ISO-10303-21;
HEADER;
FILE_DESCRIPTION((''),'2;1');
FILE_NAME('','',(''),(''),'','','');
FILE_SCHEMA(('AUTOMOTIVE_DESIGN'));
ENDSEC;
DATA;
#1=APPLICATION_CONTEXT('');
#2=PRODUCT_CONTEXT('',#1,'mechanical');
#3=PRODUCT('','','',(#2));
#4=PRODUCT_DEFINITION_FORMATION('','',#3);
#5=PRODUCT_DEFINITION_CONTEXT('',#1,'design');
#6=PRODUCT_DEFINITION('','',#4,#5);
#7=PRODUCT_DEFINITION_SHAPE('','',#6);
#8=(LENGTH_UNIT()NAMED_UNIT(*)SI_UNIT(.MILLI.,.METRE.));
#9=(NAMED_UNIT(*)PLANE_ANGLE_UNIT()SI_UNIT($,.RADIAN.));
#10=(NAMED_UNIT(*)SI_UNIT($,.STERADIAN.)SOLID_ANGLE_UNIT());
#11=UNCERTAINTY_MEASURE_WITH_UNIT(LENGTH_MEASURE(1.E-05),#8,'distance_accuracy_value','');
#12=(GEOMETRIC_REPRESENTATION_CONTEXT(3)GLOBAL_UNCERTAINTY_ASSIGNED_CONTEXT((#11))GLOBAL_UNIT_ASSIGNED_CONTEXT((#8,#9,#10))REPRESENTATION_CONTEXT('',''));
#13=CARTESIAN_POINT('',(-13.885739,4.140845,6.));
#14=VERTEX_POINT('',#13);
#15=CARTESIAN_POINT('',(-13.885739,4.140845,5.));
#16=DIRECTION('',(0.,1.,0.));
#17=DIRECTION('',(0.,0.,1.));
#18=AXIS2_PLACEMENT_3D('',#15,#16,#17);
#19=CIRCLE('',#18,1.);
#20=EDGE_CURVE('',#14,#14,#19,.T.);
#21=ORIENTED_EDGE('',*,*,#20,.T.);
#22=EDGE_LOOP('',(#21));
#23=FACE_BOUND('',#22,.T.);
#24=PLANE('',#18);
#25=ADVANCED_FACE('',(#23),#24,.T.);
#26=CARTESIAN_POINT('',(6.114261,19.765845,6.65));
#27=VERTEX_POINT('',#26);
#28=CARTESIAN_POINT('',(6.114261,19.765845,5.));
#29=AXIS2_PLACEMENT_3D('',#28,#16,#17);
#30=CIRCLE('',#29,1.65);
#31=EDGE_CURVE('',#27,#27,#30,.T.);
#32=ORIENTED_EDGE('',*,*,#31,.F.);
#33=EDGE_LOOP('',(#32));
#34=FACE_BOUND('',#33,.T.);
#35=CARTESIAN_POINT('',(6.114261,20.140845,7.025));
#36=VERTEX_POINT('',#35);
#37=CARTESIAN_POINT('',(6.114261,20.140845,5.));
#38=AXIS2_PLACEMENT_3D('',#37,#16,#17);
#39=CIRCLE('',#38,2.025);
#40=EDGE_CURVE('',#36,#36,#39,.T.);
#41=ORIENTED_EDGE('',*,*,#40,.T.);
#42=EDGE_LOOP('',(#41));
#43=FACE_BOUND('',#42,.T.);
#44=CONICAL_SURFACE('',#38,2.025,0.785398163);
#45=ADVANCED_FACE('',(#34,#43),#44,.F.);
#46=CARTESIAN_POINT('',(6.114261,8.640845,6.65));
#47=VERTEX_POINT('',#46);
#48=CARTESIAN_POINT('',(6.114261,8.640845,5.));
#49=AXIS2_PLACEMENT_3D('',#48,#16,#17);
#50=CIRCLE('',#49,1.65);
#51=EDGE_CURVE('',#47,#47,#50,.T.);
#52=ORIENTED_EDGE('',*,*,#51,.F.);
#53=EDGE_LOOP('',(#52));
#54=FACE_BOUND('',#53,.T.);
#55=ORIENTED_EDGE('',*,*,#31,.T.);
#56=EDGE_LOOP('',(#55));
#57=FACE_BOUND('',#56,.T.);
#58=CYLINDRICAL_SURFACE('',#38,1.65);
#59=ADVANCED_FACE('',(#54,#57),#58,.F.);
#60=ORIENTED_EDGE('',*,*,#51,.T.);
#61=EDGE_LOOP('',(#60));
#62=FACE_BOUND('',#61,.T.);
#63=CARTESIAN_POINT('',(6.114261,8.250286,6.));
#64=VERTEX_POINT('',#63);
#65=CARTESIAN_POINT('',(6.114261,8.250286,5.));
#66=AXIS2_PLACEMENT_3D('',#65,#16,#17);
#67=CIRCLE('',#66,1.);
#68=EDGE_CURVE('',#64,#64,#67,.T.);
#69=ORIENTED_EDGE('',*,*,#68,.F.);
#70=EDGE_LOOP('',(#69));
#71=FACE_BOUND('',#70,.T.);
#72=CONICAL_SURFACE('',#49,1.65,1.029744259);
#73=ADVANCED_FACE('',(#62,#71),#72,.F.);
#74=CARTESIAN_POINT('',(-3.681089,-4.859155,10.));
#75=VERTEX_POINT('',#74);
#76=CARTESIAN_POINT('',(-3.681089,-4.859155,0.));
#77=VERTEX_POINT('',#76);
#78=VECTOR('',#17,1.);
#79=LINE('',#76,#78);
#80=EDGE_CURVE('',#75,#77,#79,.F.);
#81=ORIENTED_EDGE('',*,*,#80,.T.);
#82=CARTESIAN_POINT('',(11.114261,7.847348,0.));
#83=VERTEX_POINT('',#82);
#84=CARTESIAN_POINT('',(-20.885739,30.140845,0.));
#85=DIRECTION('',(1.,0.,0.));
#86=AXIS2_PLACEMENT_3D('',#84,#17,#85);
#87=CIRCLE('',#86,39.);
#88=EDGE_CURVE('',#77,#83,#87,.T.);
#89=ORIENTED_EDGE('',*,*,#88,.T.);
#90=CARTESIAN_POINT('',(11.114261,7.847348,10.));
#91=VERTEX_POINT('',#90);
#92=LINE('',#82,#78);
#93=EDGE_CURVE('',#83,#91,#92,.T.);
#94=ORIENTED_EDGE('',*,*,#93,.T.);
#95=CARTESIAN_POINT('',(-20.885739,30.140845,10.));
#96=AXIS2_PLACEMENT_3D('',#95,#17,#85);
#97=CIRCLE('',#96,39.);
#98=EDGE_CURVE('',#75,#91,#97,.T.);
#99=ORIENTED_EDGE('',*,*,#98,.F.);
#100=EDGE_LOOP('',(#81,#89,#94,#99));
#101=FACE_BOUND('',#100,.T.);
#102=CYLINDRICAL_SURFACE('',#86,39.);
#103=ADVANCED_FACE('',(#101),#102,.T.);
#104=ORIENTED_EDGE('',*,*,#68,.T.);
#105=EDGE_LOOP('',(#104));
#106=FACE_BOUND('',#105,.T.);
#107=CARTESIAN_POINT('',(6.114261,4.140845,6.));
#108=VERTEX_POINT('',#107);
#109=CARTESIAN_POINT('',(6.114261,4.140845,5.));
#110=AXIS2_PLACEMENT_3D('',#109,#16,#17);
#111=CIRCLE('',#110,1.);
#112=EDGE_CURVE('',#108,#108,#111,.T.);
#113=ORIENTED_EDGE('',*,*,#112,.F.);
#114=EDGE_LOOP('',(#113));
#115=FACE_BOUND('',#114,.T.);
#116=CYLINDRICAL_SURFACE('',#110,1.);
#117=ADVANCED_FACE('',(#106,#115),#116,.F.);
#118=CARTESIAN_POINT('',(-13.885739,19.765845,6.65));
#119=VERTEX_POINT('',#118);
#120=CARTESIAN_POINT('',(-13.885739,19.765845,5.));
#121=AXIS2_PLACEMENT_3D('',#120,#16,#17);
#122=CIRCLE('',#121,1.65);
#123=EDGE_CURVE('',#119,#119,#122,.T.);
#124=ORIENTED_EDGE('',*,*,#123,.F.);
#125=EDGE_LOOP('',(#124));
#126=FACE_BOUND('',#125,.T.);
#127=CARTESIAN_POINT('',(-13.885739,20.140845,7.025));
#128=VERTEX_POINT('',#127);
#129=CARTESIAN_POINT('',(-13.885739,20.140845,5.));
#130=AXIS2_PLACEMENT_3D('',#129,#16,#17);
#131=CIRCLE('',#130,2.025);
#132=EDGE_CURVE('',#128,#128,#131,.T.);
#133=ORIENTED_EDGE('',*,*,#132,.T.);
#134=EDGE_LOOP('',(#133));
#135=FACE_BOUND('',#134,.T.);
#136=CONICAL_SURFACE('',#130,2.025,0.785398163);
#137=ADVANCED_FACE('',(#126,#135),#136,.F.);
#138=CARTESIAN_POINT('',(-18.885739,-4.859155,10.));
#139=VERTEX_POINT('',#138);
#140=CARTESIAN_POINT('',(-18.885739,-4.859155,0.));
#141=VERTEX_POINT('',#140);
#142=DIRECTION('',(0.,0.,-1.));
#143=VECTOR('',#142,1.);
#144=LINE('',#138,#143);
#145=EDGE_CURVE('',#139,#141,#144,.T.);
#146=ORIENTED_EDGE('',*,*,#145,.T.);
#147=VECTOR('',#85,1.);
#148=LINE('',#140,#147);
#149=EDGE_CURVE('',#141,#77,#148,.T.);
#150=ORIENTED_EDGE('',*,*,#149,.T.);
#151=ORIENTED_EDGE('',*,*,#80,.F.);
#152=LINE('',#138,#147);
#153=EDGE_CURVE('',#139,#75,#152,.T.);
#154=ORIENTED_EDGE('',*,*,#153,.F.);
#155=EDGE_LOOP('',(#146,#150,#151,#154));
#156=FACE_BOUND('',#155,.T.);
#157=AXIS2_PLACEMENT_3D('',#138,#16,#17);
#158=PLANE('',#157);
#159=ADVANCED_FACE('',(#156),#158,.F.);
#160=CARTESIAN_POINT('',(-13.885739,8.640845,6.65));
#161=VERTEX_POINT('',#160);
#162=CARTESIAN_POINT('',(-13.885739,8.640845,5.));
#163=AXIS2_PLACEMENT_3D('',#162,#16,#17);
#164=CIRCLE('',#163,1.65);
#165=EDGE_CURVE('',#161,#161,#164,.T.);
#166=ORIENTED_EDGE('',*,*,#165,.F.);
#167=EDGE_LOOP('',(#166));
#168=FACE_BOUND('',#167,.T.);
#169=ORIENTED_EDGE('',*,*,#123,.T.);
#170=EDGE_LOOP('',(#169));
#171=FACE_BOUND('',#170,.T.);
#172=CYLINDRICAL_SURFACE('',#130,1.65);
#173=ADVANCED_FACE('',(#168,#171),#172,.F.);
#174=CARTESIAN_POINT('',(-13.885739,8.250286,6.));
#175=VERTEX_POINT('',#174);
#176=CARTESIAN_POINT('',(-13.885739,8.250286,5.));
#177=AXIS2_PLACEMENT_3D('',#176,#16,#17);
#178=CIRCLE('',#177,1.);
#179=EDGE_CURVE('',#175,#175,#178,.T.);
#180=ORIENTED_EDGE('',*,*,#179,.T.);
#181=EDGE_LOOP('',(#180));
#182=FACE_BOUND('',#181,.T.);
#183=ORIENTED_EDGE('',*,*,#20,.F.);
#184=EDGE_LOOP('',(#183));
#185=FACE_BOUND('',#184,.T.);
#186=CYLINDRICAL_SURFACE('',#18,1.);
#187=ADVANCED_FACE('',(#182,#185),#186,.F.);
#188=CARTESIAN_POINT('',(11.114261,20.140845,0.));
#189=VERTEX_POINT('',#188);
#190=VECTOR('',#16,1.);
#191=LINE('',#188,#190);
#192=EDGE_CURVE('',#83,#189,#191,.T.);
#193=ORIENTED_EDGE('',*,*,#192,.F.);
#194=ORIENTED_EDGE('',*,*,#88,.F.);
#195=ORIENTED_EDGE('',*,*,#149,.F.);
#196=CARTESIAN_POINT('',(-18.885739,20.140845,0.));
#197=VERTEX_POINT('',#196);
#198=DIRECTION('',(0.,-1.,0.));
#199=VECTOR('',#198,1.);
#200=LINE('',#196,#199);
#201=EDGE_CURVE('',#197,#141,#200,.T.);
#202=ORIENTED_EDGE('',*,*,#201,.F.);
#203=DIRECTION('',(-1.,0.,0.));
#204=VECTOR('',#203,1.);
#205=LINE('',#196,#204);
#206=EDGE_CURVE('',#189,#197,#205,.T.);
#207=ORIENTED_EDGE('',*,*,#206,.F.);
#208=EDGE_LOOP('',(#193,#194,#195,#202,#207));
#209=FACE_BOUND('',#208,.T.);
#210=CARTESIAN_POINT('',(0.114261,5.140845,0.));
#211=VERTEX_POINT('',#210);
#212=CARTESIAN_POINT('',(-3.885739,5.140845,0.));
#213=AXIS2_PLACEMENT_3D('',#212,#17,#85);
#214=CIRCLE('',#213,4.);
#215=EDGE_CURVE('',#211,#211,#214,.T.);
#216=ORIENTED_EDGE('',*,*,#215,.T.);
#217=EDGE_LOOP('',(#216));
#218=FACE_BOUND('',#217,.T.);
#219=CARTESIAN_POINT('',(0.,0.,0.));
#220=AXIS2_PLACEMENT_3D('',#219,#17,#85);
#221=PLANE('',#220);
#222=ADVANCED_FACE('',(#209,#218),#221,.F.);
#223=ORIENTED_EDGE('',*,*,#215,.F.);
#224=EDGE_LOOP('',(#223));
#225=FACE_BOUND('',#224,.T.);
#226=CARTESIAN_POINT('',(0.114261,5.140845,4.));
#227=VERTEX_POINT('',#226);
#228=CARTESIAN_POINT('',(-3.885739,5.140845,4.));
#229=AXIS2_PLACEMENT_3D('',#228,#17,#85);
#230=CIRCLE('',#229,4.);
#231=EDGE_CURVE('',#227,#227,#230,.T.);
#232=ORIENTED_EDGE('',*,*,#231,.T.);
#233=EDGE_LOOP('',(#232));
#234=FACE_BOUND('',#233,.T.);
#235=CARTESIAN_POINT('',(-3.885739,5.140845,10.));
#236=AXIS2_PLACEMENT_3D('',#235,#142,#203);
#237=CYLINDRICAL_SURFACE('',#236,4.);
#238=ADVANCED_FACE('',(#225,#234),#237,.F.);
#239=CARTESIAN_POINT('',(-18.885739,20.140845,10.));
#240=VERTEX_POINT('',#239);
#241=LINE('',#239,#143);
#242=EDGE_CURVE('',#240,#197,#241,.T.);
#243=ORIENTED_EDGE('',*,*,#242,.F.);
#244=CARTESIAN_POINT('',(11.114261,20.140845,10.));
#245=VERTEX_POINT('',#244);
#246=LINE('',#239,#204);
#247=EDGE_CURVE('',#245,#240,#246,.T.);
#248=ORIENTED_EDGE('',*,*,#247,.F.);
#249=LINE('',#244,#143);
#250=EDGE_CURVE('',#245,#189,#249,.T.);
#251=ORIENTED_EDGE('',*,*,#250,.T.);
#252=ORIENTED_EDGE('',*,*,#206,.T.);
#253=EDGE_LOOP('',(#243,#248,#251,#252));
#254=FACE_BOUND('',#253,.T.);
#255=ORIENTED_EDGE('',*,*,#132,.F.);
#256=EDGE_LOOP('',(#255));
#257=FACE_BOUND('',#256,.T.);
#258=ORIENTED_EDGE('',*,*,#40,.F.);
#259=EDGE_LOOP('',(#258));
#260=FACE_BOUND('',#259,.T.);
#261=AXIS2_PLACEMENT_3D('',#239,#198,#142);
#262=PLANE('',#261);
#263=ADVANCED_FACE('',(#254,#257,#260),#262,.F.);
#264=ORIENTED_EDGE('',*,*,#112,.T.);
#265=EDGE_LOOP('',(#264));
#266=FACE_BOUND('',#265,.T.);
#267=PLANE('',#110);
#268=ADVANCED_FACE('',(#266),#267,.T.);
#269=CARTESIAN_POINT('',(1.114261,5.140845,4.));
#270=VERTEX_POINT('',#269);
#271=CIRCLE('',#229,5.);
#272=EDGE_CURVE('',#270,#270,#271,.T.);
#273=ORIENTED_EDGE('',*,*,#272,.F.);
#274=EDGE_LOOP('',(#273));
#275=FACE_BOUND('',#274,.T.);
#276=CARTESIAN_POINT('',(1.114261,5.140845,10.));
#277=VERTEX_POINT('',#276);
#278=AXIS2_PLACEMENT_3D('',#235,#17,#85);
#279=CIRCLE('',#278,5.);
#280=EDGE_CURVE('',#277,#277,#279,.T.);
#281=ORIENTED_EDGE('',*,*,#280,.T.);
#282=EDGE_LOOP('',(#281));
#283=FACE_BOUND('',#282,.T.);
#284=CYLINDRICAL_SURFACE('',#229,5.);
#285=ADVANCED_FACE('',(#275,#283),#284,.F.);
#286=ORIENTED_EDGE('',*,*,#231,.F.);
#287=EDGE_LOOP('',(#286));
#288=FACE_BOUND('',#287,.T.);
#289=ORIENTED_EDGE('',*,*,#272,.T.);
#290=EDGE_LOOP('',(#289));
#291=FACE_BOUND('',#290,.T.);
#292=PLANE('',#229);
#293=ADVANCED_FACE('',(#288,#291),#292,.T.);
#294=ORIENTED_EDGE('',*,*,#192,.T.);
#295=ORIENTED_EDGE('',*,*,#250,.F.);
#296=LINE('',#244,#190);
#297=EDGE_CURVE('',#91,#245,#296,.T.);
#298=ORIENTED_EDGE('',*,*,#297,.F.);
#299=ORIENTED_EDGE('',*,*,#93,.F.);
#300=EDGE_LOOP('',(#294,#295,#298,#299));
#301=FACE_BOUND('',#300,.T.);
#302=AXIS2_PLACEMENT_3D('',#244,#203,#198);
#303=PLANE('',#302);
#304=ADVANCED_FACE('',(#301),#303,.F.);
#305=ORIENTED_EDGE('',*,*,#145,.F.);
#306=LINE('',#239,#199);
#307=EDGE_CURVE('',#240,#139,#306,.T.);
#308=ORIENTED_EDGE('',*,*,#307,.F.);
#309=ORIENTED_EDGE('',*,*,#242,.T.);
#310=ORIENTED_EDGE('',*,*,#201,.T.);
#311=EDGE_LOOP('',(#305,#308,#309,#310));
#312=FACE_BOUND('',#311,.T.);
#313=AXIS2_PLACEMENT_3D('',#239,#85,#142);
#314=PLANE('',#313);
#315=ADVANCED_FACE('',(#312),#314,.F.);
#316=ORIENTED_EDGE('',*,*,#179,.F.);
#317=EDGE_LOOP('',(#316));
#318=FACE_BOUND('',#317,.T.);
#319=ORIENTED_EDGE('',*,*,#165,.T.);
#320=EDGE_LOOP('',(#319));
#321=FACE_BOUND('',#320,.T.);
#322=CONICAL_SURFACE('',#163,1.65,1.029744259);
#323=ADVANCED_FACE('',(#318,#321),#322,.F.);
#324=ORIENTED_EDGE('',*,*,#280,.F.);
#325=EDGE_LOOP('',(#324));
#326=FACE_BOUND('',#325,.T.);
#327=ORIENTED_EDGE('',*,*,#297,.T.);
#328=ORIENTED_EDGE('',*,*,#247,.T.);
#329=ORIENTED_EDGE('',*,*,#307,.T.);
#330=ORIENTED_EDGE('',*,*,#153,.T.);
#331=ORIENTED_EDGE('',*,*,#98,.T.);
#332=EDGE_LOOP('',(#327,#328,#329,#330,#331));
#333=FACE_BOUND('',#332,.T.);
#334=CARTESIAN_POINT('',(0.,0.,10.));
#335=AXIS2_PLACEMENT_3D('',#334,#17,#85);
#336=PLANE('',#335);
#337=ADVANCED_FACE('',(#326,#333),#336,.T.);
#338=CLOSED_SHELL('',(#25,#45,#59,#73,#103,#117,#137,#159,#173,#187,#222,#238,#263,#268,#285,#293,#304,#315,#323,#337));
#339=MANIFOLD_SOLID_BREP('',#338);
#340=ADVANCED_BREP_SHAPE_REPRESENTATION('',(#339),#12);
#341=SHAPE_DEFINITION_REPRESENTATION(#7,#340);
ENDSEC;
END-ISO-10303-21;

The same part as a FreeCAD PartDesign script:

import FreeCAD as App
import Part
import Sketcher

V = App.Vector

doc = App.newDocument("Part")
body = doc.addObject("PartDesign::Body", "Body")

# Sketch on XY plane
sketch1 = body.newObject("Sketcher::SketchObject", "Sketch")
sketch1.AttachmentSupport = (doc.getObject("XY_Plane"), [""])
sketch1.MapMode = "FlatFace"
sketch1.addGeometry([
    Part.LineSegment(V(-18.9, 20.1, 0), V(-18.9, -4.9, 0)),  # 0
    Part.LineSegment(V(-18.9, -4.9, 0), V(11.1, -4.9, 0)),  # 1
    Part.LineSegment(V(11.1, -4.9, 0), V(11.1, 20.1, 0)),  # 2
    Part.LineSegment(V(11.1, 20.1, 0), V(-18.9, 20.1, 0)),  # 3
    Part.Circle(V(-3.9, 5.1, 0), V(0, 0, 1), 4),  # 4
], False)
sketch1.addConstraint([
    Sketcher.Constraint("Coincident", 0, 2, 1, 1),
    Sketcher.Constraint("Coincident", 1, 2, 2, 1),
    Sketcher.Constraint("Coincident", 2, 2, 3, 1),
    Sketcher.Constraint("Coincident", 3, 2, 0, 1),
    Sketcher.Constraint("Vertical", 0),
    Sketcher.Constraint("Horizontal", 1),
    Sketcher.Constraint("Vertical", 2),
    Sketcher.Constraint("Horizontal", 3),
    Sketcher.Constraint("Diameter", 4, 8.0),
    Sketcher.Constraint("DistanceX", 1, 1, 1, 2, 30.0),
    Sketcher.Constraint("DistanceY", 0, 2, 0, 1, 25.0),
    Sketcher.Constraint("DistanceX", 0, 2, 4, 3, 15.0),
    Sketcher.Constraint("DistanceY", 0, 2, 4, 3, 10.0),
    Sketcher.Constraint("DistanceX", 4, 3, -1, 1, 3.885739),
    Sketcher.Constraint("DistanceY", -1, 1, 4, 3, 5.140845),
])
pad1 = body.newObject("PartDesign::Pad", "Pad")
pad1.Profile = sketch1
pad1.Length = 10

# Sketch on XY plane
sketch2 = body.newObject("Sketcher::SketchObject", "Sketch001")
sketch2.AttachmentSupport = (doc.getObject("XY_Plane"), [""])
sketch2.MapMode = "FlatFace"
sketch2.AttachmentOffset = App.Placement(V(0, 0, 10), App.Rotation())
sketch2.addGeometry(Part.Circle(V(-4, 5, 0), V(0, 0, 1), 5), False)
sketch2.addConstraint([
    Sketcher.Constraint("Diameter", 0, 10.0),
    Sketcher.Constraint("DistanceX", 0, 3, -1, 1, 3.885739),
    Sketcher.Constraint("DistanceY", -1, 1, 0, 3, 5.140845),
])
pocket1 = body.newObject("PartDesign::Pocket", "Pocket")
pocket1.Profile = sketch2
pocket1.Length = 6

# Sketch on XZ plane
sketch3 = body.newObject("Sketcher::SketchObject", "Sketch002")
sketch3.AttachmentSupport = (doc.getObject("XZ_Plane"), [""])
sketch3.MapMode = "FlatFace"
sketch3.AttachmentOffset = App.Placement(V(0, 0, -20.140845), App.Rotation())
sketch3.addGeometry([
    Part.Circle(V(-13.9, 5, 0), V(0, 0, 1), 1),
    Part.Circle(V(6.1, 5, 0), V(0, 0, 1), 1),
], False)
sketch3.addConstraint([
    Sketcher.Constraint("Equal", 0, 1),
    Sketcher.Constraint("Horizontal", 0, 3, 1, 3),
    Sketcher.Constraint("Diameter", 0, 2.0),
    Sketcher.Constraint("DistanceY", -1, 1, 0, 3, 5.0),
    Sketcher.Constraint("DistanceX", 0, 3, 1, 3, 20.0),
    Sketcher.Constraint("DistanceX", 0, 3, -1, 1, 13.885739),
])
pocket2 = body.newObject("PartDesign::Pocket", "Pocket001")
pocket2.Profile = sketch3
pocket2.Length = 16
pocket2.Reversed = True

# Sketch on XZ plane
sketch4 = body.newObject("Sketcher::SketchObject", "Sketch003")
sketch4.AttachmentSupport = (doc.getObject("XZ_Plane"), [""])
sketch4.MapMode = "FlatFace"
sketch4.AttachmentOffset = App.Placement(V(0, 0, -20.140845), App.Rotation())
sketch4.addGeometry([
    Part.Circle(V(-13.9, 5, 0), V(0, 0, 1), 1.6),
    Part.Circle(V(6.1, 5, 0), V(0, 0, 1), 1.6),
], False)
sketch4.addConstraint([
    Sketcher.Constraint("Equal", 0, 1),
    Sketcher.Constraint("Horizontal", 0, 3, 1, 3),
    Sketcher.Constraint("Diameter", 0, 3.3),
    Sketcher.Constraint("DistanceY", -1, 1, 0, 3, 5.0),
    Sketcher.Constraint("DistanceX", 0, 3, 1, 3, 20.0),
    Sketcher.Constraint("DistanceX", 0, 3, -1, 1, 13.885739),
])
doc.recompute()
hole = body.newObject("PartDesign::Hole", "Hole")
hole.Profile = sketch4
hole.ThreadType = "None"
hole.Diameter = 3.3
hole.DepthType = "Dimension"
hole.Depth = 11.5
hole.DrillPoint = "Angled"
hole.DrillPointAngle = 118
hole.HoleCutType = "Countersink"
hole.HoleCutDiameter = 4.05
hole.HoleCutCountersinkAngle = 90
hole.Reversed = True

# Sketch on XY plane
sketch5 = body.newObject("Sketcher::SketchObject", "Sketch004")
sketch5.AttachmentSupport = (doc.getObject("XY_Plane"), [""])
sketch5.MapMode = "FlatFace"
sketch5.AttachmentOffset = App.Placement(V(0, 0, 10), App.Rotation())
sketch5.addGeometry([
    Part.Circle(V(-21, 30, 0), V(0, 0, 1), 51),
    Part.Circle(V(-21, 30, 0), V(0, 0, 1), 39),
], False)
sketch5.addConstraint([
    Sketcher.Constraint("Coincident", 1, 3, 0, 3),
    Sketcher.Constraint("Diameter", 1, 78.0),
    Sketcher.Constraint("Diameter", 0, 102.414675),
    Sketcher.Constraint("DistanceX", 0, 3, -1, 1, 20.885739),
    Sketcher.Constraint("DistanceY", -1, 1, 0, 3, 30.140845),
])
pocket3 = body.newObject("PartDesign::Pocket", "Pocket002")
pocket3.Profile = sketch5
pocket3.Length = 10

doc.recompute()
